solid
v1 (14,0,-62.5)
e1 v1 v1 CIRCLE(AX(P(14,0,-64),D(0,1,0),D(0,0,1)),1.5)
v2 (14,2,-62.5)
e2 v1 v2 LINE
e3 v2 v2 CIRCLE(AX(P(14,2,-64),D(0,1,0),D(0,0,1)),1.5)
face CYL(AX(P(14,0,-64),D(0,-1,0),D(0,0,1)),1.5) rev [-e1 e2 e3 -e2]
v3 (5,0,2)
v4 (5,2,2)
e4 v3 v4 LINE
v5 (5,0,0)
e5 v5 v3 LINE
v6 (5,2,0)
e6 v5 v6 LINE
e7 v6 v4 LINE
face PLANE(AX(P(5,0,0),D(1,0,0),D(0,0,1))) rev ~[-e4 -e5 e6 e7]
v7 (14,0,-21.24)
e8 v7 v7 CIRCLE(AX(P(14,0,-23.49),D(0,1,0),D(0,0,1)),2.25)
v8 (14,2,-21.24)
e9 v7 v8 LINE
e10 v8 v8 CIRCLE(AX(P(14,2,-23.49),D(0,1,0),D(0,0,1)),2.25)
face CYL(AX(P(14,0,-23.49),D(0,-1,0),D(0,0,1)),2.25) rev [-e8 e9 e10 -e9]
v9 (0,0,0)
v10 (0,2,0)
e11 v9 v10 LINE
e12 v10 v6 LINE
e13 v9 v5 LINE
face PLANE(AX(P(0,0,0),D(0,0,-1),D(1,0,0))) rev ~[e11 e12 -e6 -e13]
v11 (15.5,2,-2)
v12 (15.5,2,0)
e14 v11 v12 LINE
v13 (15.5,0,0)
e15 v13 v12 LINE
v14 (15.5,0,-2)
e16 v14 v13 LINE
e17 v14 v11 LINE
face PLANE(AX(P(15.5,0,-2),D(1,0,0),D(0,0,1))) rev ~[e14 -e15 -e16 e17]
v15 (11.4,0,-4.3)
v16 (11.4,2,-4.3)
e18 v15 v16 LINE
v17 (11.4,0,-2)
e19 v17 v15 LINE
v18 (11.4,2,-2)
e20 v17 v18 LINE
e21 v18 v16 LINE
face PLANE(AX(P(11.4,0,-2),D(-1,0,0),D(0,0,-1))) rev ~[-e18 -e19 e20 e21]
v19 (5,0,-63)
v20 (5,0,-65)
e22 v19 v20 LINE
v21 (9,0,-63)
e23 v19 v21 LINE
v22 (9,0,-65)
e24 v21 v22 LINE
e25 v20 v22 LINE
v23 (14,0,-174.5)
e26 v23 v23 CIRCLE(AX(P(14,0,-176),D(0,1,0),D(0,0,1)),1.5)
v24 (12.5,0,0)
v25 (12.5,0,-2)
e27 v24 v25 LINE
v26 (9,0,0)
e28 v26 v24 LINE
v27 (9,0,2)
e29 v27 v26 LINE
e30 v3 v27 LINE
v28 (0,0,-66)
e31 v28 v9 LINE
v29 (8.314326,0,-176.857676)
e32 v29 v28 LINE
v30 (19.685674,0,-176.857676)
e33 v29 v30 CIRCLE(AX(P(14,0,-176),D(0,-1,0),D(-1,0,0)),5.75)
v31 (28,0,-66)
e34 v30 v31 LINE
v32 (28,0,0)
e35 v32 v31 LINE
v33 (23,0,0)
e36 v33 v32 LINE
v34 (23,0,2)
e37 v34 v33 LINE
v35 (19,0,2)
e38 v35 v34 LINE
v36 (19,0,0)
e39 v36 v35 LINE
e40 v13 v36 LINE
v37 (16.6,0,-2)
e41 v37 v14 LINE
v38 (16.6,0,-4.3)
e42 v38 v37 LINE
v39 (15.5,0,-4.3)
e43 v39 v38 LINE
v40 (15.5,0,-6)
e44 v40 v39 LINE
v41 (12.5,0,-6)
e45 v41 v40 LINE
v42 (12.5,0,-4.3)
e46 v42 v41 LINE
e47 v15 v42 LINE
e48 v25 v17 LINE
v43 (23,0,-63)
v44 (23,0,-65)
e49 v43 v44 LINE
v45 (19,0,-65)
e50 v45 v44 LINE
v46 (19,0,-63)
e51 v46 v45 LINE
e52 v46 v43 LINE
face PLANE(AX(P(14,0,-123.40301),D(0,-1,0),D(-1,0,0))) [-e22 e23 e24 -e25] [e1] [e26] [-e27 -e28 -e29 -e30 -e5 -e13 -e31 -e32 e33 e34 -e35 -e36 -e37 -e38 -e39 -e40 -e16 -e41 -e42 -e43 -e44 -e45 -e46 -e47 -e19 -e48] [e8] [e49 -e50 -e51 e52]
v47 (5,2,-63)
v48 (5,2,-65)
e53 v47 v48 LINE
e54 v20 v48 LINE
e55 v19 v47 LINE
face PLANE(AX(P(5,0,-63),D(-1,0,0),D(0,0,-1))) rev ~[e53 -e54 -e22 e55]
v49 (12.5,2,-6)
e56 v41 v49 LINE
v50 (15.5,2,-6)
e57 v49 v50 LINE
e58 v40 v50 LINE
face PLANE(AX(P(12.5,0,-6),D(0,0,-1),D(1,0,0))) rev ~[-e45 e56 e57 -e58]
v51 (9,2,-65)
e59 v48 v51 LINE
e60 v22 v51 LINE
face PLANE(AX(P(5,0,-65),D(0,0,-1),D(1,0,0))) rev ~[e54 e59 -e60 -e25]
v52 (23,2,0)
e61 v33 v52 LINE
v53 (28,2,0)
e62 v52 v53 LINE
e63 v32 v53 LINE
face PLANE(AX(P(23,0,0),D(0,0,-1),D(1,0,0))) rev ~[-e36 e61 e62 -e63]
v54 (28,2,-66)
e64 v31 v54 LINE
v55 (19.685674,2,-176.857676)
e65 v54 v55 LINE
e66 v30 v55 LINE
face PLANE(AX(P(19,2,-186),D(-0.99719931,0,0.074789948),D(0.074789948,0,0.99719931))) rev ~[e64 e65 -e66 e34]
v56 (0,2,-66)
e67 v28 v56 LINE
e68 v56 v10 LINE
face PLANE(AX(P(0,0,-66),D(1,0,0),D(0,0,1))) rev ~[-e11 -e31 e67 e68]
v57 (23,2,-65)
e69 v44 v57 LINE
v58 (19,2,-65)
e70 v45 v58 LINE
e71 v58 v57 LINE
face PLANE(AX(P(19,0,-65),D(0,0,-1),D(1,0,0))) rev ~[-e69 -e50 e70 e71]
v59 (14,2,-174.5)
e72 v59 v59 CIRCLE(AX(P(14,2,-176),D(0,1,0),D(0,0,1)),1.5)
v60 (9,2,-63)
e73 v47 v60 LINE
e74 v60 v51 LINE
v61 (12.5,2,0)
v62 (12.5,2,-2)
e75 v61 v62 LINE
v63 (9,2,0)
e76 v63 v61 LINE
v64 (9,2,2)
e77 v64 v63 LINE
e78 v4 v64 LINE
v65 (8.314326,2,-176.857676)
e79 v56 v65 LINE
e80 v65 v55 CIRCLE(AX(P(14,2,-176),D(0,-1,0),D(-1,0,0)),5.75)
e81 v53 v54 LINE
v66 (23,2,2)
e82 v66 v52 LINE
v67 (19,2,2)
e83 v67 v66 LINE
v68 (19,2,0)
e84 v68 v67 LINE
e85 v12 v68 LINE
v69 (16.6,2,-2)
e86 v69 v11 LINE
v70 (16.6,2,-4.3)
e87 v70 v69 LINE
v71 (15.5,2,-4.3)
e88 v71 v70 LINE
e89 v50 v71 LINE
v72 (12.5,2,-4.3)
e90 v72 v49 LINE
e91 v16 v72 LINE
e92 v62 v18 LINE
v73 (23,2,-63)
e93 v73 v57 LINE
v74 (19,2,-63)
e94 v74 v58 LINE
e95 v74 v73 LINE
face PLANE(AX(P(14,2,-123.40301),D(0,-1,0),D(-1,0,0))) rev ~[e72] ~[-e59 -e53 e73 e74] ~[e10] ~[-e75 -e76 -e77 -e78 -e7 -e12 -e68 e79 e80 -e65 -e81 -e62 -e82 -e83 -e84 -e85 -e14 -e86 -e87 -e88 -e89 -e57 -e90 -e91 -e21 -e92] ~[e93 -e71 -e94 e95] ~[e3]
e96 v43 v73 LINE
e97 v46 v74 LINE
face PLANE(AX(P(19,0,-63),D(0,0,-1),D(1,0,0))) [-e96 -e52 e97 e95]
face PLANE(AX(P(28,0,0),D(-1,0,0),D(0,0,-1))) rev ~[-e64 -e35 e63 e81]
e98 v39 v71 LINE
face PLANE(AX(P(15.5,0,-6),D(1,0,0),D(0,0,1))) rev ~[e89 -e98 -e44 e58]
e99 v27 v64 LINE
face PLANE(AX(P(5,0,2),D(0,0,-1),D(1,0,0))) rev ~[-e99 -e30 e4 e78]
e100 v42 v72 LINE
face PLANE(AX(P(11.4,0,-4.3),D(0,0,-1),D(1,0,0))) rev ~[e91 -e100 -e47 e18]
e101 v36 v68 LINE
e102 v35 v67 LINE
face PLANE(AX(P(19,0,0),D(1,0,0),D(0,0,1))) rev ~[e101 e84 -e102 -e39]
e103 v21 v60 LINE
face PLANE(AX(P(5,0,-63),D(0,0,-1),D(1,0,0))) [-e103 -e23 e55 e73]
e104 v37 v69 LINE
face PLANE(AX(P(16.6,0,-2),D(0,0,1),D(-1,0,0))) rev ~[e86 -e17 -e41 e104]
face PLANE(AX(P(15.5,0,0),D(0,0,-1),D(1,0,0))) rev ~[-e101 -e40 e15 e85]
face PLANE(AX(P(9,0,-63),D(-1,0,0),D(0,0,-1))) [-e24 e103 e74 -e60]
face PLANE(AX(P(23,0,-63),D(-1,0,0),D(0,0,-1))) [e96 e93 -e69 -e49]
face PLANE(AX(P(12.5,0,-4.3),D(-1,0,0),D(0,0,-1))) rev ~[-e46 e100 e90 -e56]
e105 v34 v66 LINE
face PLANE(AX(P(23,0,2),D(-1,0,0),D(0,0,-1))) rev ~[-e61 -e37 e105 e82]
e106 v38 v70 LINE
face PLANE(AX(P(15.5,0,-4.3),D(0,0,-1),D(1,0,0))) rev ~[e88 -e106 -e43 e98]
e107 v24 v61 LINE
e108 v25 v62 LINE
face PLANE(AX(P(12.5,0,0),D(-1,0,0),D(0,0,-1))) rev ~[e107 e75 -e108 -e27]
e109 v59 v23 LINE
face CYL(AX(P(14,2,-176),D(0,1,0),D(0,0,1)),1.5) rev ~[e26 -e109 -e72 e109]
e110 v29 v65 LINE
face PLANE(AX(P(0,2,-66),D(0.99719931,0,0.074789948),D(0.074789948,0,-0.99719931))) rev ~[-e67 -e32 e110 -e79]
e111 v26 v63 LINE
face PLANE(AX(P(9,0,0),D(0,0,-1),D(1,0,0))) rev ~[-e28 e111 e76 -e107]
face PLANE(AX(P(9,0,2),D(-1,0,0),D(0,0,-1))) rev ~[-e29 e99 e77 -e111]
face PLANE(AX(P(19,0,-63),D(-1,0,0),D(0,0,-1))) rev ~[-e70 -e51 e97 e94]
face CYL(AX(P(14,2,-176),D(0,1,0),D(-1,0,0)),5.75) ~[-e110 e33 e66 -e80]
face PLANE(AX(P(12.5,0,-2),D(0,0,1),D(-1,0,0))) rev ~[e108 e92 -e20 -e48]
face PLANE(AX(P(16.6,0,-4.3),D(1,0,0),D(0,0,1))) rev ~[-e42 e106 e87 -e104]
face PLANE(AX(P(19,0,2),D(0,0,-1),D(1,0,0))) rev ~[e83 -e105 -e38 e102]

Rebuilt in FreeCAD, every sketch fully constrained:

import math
import FreeCAD as App
import Part
import Sketcher

doc = App.newDocument("Part")
body = doc.addObject("PartDesign::Body", "Body")

# Sketch on XZ plane
sketch1 = body.newObject("Sketcher::SketchObject", "Sketch")
sketch1.AttachmentSupport = (doc.getObject("XZ_Plane"), [""])
sketch1.MapMode = "FlatFace"
sketch1.addGeometry(Part.LineSegment(App.Vector(0, 0, 0), App.Vector(5, 0, 0)), False)
sketch1.addGeometry(Part.LineSegment(App.Vector(5, 0, 0), App.Vector(5, 2, 0)), False)
sketch1.addGeometry(Part.LineSegment(App.Vector(5, 2, 0), App.Vector(9, 2, 0)), False)
sketch1.addGeometry(Part.LineSegment(App.Vector(9, 2, 0), App.Vector(9, 0, 0)), False)
sketch1.addGeometry(Part.LineSegment(App.Vector(9, 0, 0), App.Vector(12.5, 0, 0)), False)
sketch1.addGeometry(Part.LineSegment(App.Vector(12.5, 0, 0), App.Vector(12.5, -2, 0)), False)
sketch1.addGeometry(Part.LineSegment(App.Vector(12.5, -2, 0), App.Vector(11.4, -2, 0)), False)
sketch1.addGeometry(Part.LineSegment(App.Vector(11.4, -2, 0), App.Vector(11.4, -4.3, 0)), False)
sketch1.addGeometry(Part.LineSegment(App.Vector(11.4, -4.3, 0), App.Vector(12.5, -4.3, 0)), False)
sketch1.addGeometry(Part.LineSegment(App.Vector(12.5, -4.3, 0), App.Vector(12.5, -6, 0)), False)
sketch1.addGeometry(Part.LineSegment(App.Vector(12.5, -6, 0), App.Vector(15.5, -6, 0)), False)
sketch1.addGeometry(Part.LineSegment(App.Vector(15.5, -6, 0), App.Vector(15.5, -4.3, 0)), False)
sketch1.addGeometry(Part.LineSegment(App.Vector(15.5, -4.3, 0), App.Vector(16.6, -4.3, 0)), False)
sketch1.addGeometry(Part.LineSegment(App.Vector(16.6, -4.3, 0), App.Vector(16.6, -2, 0)), False)
sketch1.addGeometry(Part.LineSegment(App.Vector(16.6, -2, 0), App.Vector(15.5, -2, 0)), False)
sketch1.addGeometry(Part.LineSegment(App.Vector(15.5, -2, 0), App.Vector(15.5, 0, 0)), False)
sketch1.addGeometry(Part.LineSegment(App.Vector(15.5, 0, 0), App.Vector(19, 0, 0)), False)
sketch1.addGeometry(Part.LineSegment(App.Vector(19, 0, 0), App.Vector(19, 2, 0)), False)
sketch1.addGeometry(Part.LineSegment(App.Vector(19, 2, 0), App.Vector(23, 2, 0)), False)
sketch1.addGeometry(Part.LineSegment(App.Vector(23, 2, 0), App.Vector(23, 0, 0)), False)
sketch1.addGeometry(Part.LineSegment(App.Vector(23, 0, 0), App.Vector(28, 0, 0)), False)
sketch1.addGeometry(Part.LineSegment(App.Vector(28, 0, 0), App.Vector(28, -66, 0)), False)
sketch1.addGeometry(Part.LineSegment(App.Vector(28, -66, 0), App.Vector(0, -66, 0)), False)
sketch1.addGeometry(Part.LineSegment(App.Vector(0, -66, 0), App.Vector(0, 0, 0)), False)
sketch1.addGeometry(Part.Circle(App.Vector(14, -23.5, 0), App.Vector(0, 0, 1), 2.2), False)
sketch1.addGeometry(Part.LineSegment(App.Vector(9, -63, 0), App.Vector(5, -63, 0)), False)
sketch1.addGeometry(Part.LineSegment(App.Vector(5, -63, 0), App.Vector(5, -65, 0)), False)
sketch1.addGeometry(Part.LineSegment(App.Vector(5, -65, 0), App.Vector(9, -65, 0)), False)
sketch1.addGeometry(Part.LineSegment(App.Vector(9, -65, 0), App.Vector(9, -63, 0)), False)
sketch1.addGeometry(Part.Circle(App.Vector(14, -64, 0), App.Vector(0, 0, 1), 1.5), False)
sketch1.addGeometry(Part.LineSegment(App.Vector(23, -63, 0), App.Vector(19, -63, 0)), False)
sketch1.addGeometry(Part.LineSegment(App.Vector(19, -63, 0), App.Vector(19, -65, 0)), False)
sketch1.addGeometry(Part.LineSegment(App.Vector(19, -65, 0), App.Vector(23, -65, 0)), False)
sketch1.addGeometry(Part.LineSegment(App.Vector(23, -65, 0), App.Vector(23, -63, 0)), False)
sketch1.addConstraint(Sketcher.Constraint("Coincident", 0, 2, 1, 1))
sketch1.addConstraint(Sketcher.Constraint("Coincident", 1, 2, 2, 1))
sketch1.addConstraint(Sketcher.Constraint("Coincident", 2, 2, 3, 1))
sketch1.addConstraint(Sketcher.Constraint("Coincident", 3, 2, 4, 1))
sketch1.addConstraint(Sketcher.Constraint("Coincident", 4, 2, 5, 1))
sketch1.addConstraint(Sketcher.Constraint("Coincident", 5, 2, 6, 1))
sketch1.addConstraint(Sketcher.Constraint("Coincident", 6, 2, 7, 1))
sketch1.addConstraint(Sketcher.Constraint("Coincident", 7, 2, 8, 1))
sketch1.addConstraint(Sketcher.Constraint("Coincident", 8, 2, 9, 1))
sketch1.addConstraint(Sketcher.Constraint("Coincident", 9, 2, 10, 1))
sketch1.addConstraint(Sketcher.Constraint("Coincident", 10, 2, 11, 1))
sketch1.addConstraint(Sketcher.Constraint("Coincident", 11, 2, 12, 1))
sketch1.addConstraint(Sketcher.Constraint("Coincident", 12, 2, 13, 1))
sketch1.addConstraint(Sketcher.Constraint("Coincident", 13, 2, 14, 1))
sketch1.addConstraint(Sketcher.Constraint("Coincident", 14, 2, 15, 1))
sketch1.addConstraint(Sketcher.Constraint("Coincident", 15, 2, 16, 1))
sketch1.addConstraint(Sketcher.Constraint("Coincident", 16, 2, 17, 1))
sketch1.addConstraint(Sketcher.Constraint("Coincident", 17, 2, 18, 1))
sketch1.addConstraint(Sketcher.Constraint("Coincident", 18, 2, 19, 1))
sketch1.addConstraint(Sketcher.Constraint("Coincident", 19, 2, 20, 1))
sketch1.addConstraint(Sketcher.Constraint("Coincident", 20, 2, 21, 1))
sketch1.addConstraint(Sketcher.Constraint("Coincident", 21, 2, 22, 1))
sketch1.addConstraint(Sketcher.Constraint("Coincident", 22, 2, 23, 1))
sketch1.addConstraint(Sketcher.Constraint("Coincident", 23, 2, 0, 1))
sketch1.addConstraint(Sketcher.Constraint("Coincident", 25, 2, 26, 1))
sketch1.addConstraint(Sketcher.Constraint("Coincident", 26, 2, 27, 1))
sketch1.addConstraint(Sketcher.Constraint("Coincident", 27, 2, 28, 1))
sketch1.addConstraint(Sketcher.Constraint("Coincident", 28, 2, 25, 1))
sketch1.addConstraint(Sketcher.Constraint("Coincident", 30, 2, 31, 1))
sketch1.addConstraint(Sketcher.Constraint("Coincident", 31, 2, 32, 1))
sketch1.addConstraint(Sketcher.Constraint("Coincident", 32, 2, 33, 1))
sketch1.addConstraint(Sketcher.Constraint("Coincident", 33, 2, 30, 1))
sketch1.addConstraint(Sketcher.Constraint("Horizontal", 0))
sketch1.addConstraint(Sketcher.Constraint("Vertical", 1))
sketch1.addConstraint(Sketcher.Constraint("Horizontal", 2))
sketch1.addConstraint(Sketcher.Constraint("Vertical", 3))
sketch1.addConstraint(Sketcher.Constraint("Horizontal", 4))
sketch1.addConstraint(Sketcher.Constraint("Vertical", 5))
sketch1.addConstraint(Sketcher.Constraint("Horizontal", 6))
sketch1.addConstraint(Sketcher.Constraint("Vertical", 7))
sketch1.addConstraint(Sketcher.Constraint("Horizontal", 8))
sketch1.addConstraint(Sketcher.Constraint("Vertical", 9))
sketch1.addConstraint(Sketcher.Constraint("Horizontal", 10))
sketch1.addConstraint(Sketcher.Constraint("Vertical", 11))
sketch1.addConstraint(Sketcher.Constraint("Horizontal", 12))
sketch1.addConstraint(Sketcher.Constraint("Vertical", 13))
sketch1.addConstraint(Sketcher.Constraint("Horizontal", 14))
sketch1.addConstraint(Sketcher.Constraint("Vertical", 15))
sketch1.addConstraint(Sketcher.Constraint("Horizontal", 16))
sketch1.addConstraint(Sketcher.Constraint("Vertical", 17))
sketch1.addConstraint(Sketcher.Constraint("Horizontal", 18))
sketch1.addConstraint(Sketcher.Constraint("Vertical", 19))
sketch1.addConstraint(Sketcher.Constraint("Horizontal", 20))
sketch1.addConstraint(Sketcher.Constraint("Vertical", 21))
sketch1.addConstraint(Sketcher.Constraint("Horizontal", 22))
sketch1.addConstraint(Sketcher.Constraint("Vertical", 23))
sketch1.addConstraint(Sketcher.Constraint("Horizontal", 25))
sketch1.addConstraint(Sketcher.Constraint("Vertical", 26))
sketch1.addConstraint(Sketcher.Constraint("Horizontal", 27))
sketch1.addConstraint(Sketcher.Constraint("Vertical", 28))
sketch1.addConstraint(Sketcher.Constraint("Horizontal", 30))
sketch1.addConstraint(Sketcher.Constraint("Vertical", 31))
sketch1.addConstraint(Sketcher.Constraint("Horizontal", 32))
sketch1.addConstraint(Sketcher.Constraint("Vertical", 33))
sketch1.addConstraint(Sketcher.Constraint("Coincident", 23, 2, -1, 1))
sketch1.addConstraint(Sketcher.Constraint("PointOnObject", 3, 2, -1))
sketch1.addConstraint(Sketcher.Constraint("PointOnObject", 15, 2, -1))
sketch1.addConstraint(Sketcher.Constraint("PointOnObject", 19, 2, -1))
sketch1.addConstraint(Sketcher.Constraint("Horizontal", 8, 2, 11, 2))
sketch1.addConstraint(Sketcher.Constraint("Horizontal", 6, 2, 13, 2))
sketch1.addConstraint(Sketcher.Constraint("Horizontal", 2, 2, 17, 2))
sketch1.addConstraint(Sketcher.Constraint("Horizontal", 28, 2, 30, 2))
sketch1.addConstraint(Sketcher.Constraint("Horizontal", 27, 2, 31, 2))
sketch1.addConstraint(Sketcher.Constraint("Vertical", 24, 3, 29, 3))
sketch1.addConstraint(Sketcher.Constraint("Vertical", 5, 2, 8, 2))
sketch1.addConstraint(Sketcher.Constraint("Vertical", 11, 2, 14, 2))
sketch1.addConstraint(Sketcher.Constraint("Vertical", 1, 2, 25, 2))
sketch1.addConstraint(Sketcher.Constraint("Vertical", 3, 2, 27, 2))
sketch1.addConstraint(Sketcher.Constraint("Vertical", 17, 2, 30, 2))
sketch1.addConstraint(Sketcher.Constraint("Vertical", 19, 2, 32, 2))
sketch1.addConstraint(Sketcher.Constraint("Equal", 8, 12))
sketch1.addConstraint(Sketcher.Constraint("Equal", 4, 16))
sketch1.addConstraint(Sketcher.Constraint("Equal", 2, 18))
sketch1.addConstraint(Sketcher.Constraint("Equal", 0, 20))
sketch1.addConstraint(Sketcher.Constraint("Equal", 3, 5))
sketch1.addConstraint(Sketcher.Constraint("Equal", 19, 26))
sketch1.addConstraint(Sketcher.Constraint("Diameter", 29, 3.0))
sketch1.addConstraint(Sketcher.Constraint("Diameter", 24, 4.5))
sketch1.addConstraint(Sketcher.Constraint("DistanceX", 0, 1, 0, 2, 5.0))
sketch1.addConstraint(Sketcher.Constraint("DistanceX", 2, 1, 2, 2, 4.0))
sketch1.addConstraint(Sketcher.Constraint("DistanceX", 10, 1, 10, 2, 3.0))
sketch1.addConstraint(Sketcher.Constraint("DistanceX", 22, 2, 22, 1, 28.0))
sketch1.addConstraint(Sketcher.Constraint("DistanceY", 1, 1, 1, 2, 2.0))
sketch1.addConstraint(Sketcher.Constraint("DistanceY", 21, 2, 21, 1, 66.0))
sketch1.addConstraint(Sketcher.Constraint("DistanceX", 6, 2, 6, 1, 1.1))
sketch1.addConstraint(Sketcher.Constraint("DistanceY", 7, 2, 7, 1, 2.3))
sketch1.addConstraint(Sketcher.Constraint("DistanceY", 9, 2, 9, 1, 1.7))
sketch1.addConstraint(Sketcher.Constraint("DistanceX", -1, 1, 24, 3, 14.0))
sketch1.addConstraint(Sketcher.Constraint("DistanceY", 29, 3, -1, 1, 64.0))
sketch1.addConstraint(Sketcher.Constraint("DistanceY", 25, 2, -1, 1, 63.0))
sketch1.addConstraint(Sketcher.Constraint("DistanceY", 24, 3, -1, 1, 23.49))
pad1 = body.newObject("PartDesign::Pad", "Pad")
pad1.Profile = sketch1
pad1.Length = 2
pad1.Reversed = True

# Sketch on XZ plane
sketch2 = body.newObject("Sketcher::SketchObject", "Sketch001")
sketch2.AttachmentSupport = (doc.getObject("XZ_Plane"), [""])
sketch2.MapMode = "FlatFace"
sketch2.AttachmentOffset = App.Placement(App.Vector(0, 0, -2), App.Rotation())
sketch2.addGeometry(Part.LineSegment(App.Vector(0, -66, 0), App.Vector(28, -66, 0)), False)
sketch2.addGeometry(Part.LineSegment(App.Vector(28, -66, 0), App.Vector(19, -186, 0)), False)
sketch2.addGeometry(Part.ArcOfCircle(Part.Circle(App.Vector(14, -186, 0), App.Vector(0, 0, 1), 5), math.radians(180), math.radians(360)), False)
sketch2.addGeometry(Part.LineSegment(App.Vector(9, -186, 0), App.Vector(0, -66, 0)), False)
sketch2.addConstraint(Sketcher.Constraint("Coincident", 0, 2, 1, 1))
sketch2.addConstraint(Sketcher.Constraint("Coincident", 1, 2, 2, 2))
sketch2.addConstraint(Sketcher.Constraint("Coincident", 2, 1, 3, 1))
sketch2.addConstraint(Sketcher.Constraint("Coincident", 3, 2, 0, 1))
sketch2.addConstraint(Sketcher.Constraint("Horizontal", 0))
sketch2.addConstraint(Sketcher.Constraint("PointOnObject", 3, 2, -2))
sketch2.addConstraint(Sketcher.Constraint("Horizontal", 2, 3, 1, 2))
sketch2.addConstraint(Sketcher.Constraint("Horizontal", 1, 2, 2, 1))
sketch2.addConstraint(Sketcher.Constraint("Equal", 1, 3))
sketch2.addConstraint(Sketcher.Constraint("Radius", 2, 5.0))
sketch2.addConstraint(Sketcher.Constraint("DistanceX", 0, 1, 0, 2, 28.0))
sketch2.addConstraint(Sketcher.Constraint("DistanceY", 2, 3, -1, 1, 186.0))
sketch2.addConstraint(Sketcher.Constraint("DistanceY", 0, 2, -1, 1, 66.0))
pad2 = body.newObject("PartDesign::Pad", "Pad001")
pad2.Profile = sketch2
pad2.Length = 2

# Sketch on XZ plane
sketch3 = body.newObject("Sketcher::SketchObject", "Sketch002")
sketch3.AttachmentSupport = (doc.getObject("XZ_Plane"), [""])
sketch3.MapMode = "FlatFace"
sketch3.AttachmentOffset = App.Placement(App.Vector(0, 0, -2), App.Rotation())
sketch3.addGeometry(Part.Circle(App.Vector(14, -176, 0), App.Vector(0, 0, 1), 1.5), False)
sketch3.addGeometry(Part.LineSegment(App.Vector(19.8, -176, 0), App.Vector(22, -176, 0)), False)
sketch3.addGeometry(Part.LineSegment(App.Vector(22, -176, 0), App.Vector(22, -202.1, 0)), False)
sketch3.addGeometry(Part.LineSegment(App.Vector(22, -202.1, 0), App.Vector(5.1, -202.1, 0)), False)
sketch3.addGeometry(Part.LineSegment(App.Vector(5.1, -202.1, 0), App.Vector(5.1, -176, 0)), False)
sketch3.addGeometry(Part.LineSegment(App.Vector(5.1, -176, 0), App.Vector(8.2, -176, 0)), False)
sketch3.addGeometry(Part.ArcOfCircle(Part.Circle(App.Vector(14, -176, 0), App.Vector(0, 0, 1), 5.8), math.radians(180), math.radians(360)), False)
sketch3.addConstraint(Sketcher.Constraint("Coincident", 1, 2, 2, 1))
sketch3.addConstraint(Sketcher.Constraint("Coincident", 2, 2, 3, 1))
sketch3.addConstraint(Sketcher.Constraint("Coincident", 3, 2, 4, 1))
sketch3.addConstraint(Sketcher.Constraint("Coincident", 4, 2, 5, 1))
sketch3.addConstraint(Sketcher.Constraint("Coincident", 5, 2, 6, 1))
sketch3.addConstraint(Sketcher.Constraint("Coincident", 6, 2, 1, 1))
sketch3.addConstraint(Sketcher.Constraint("Horizontal", 1))
sketch3.addConstraint(Sketcher.Constraint("Vertical", 2))
sketch3.addConstraint(Sketcher.Constraint("Horizontal", 3))
sketch3.addConstraint(Sketcher.Constraint("Vertical", 4))
sketch3.addConstraint(Sketcher.Constraint("Horizontal", 5))
sketch3.addConstraint(Sketcher.Constraint("Coincident", 6, 3, 0, 3))
sketch3.addConstraint(Sketcher.Constraint("Horizontal", 6, 3, 1, 2))
sketch3.addConstraint(Sketcher.Constraint("Horizontal", 1, 2, 4, 2))
sketch3.addConstraint(Sketcher.Constraint("Diameter", 0, 3.0))
sketch3.addConstraint(Sketcher.Constraint("Radius", 6, 5.75))
sketch3.addConstraint(Sketcher.Constraint("DistanceX", -1, 1, 0, 3, 14.0))
sketch3.addConstraint(Sketcher.Constraint("DistanceY", 0, 3, -1, 1, 176.0))
sketch3.addConstraint(Sketcher.Constraint("DistanceX", 1, 1, 1, 2, 2.256412))
sketch3.addConstraint(Sketcher.Constraint("DistanceX", 3, 2, 3, 1, 16.875584))
sketch3.addConstraint(Sketcher.Constraint("DistanceY", 2, 2, 2, 1, 26.106156))
pocket1 = body.newObject("PartDesign::Pocket", "Pocket")
pocket1.Profile = sketch3
pocket1.Length = 2
pocket1.Reversed = True

doc.recompute()
